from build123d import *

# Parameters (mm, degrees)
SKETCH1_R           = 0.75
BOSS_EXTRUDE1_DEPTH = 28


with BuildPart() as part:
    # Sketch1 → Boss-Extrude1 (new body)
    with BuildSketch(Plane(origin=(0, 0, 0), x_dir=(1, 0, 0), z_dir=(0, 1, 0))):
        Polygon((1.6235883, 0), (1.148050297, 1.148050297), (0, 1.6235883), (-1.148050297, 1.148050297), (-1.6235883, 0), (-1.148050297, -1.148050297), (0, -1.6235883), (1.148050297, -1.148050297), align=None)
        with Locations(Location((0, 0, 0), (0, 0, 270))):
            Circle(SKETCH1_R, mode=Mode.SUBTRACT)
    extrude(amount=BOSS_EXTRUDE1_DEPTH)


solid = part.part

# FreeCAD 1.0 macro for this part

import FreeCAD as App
import Part
import Sketcher

V = App.Vector
Q = App.Units.Quantity


def add_polygon(sketch, points):
    """Adds a closed chain of lines whose ends are joined by coincident constraints."""
    first, n = sketch.GeometryCount, len(points)
    for a, b in zip(points, points[1:] + points[:1]):
        sketch.addGeometry(Part.LineSegment(App.Vector(*a, 0), App.Vector(*b, 0)), False)
    for i in range(n):
        sketch.addConstraint(Sketcher.Constraint("Coincident", first + i, 2, first + (i + 1) % n, 1))

doc = App.newDocument("Part")
body = doc.addObject("PartDesign::Body", "Body")

sketch1 = doc.addObject("Sketcher::SketchObject", "Sketch")
body.addObject(sketch1)
sketch1.AttachmentSupport = (doc.XZ_Plane, [""])
sketch1.MapMode = "FlatFace"
add_polygon(sketch1, [(1.6, 0), (1.1, -1.1), (0, -1.6), (-1.1, -1.1), (-1.6, 0), (-1.1, 1.1), (0, 1.6), (1.1, 1.1)])
sketch1.addGeometry(Part.Circle(V(0, 0, 0), V(0, 0, 1), 0.8), False)
sketch1.addConstraint([
    Sketcher.Constraint("Coincident", 8, 3, -1, 1),
    Sketcher.Constraint("Symmetric", 0, 2, 4, 2, -1, 1),
    Sketcher.Constraint("Symmetric", 1, 2, 5, 2, -1, 1),
    Sketcher.Constraint("Symmetric", 2, 2, 6, 2, -1, 1),
    Sketcher.Constraint("Symmetric", 3, 2, 7, 2, -1, 1),
    Sketcher.Constraint("Symmetric", 0, 2, 2, 2, -2),
    Sketcher.Constraint("PointOnObject", 1, 2, -2),
    Sketcher.Constraint("PointOnObject", 3, 2, -1),
    Sketcher.Constraint("Perpendicular", 0, 2),
    Sketcher.Constraint("Equal", 0, 1),
    Sketcher.Constraint("Diameter", 8, Q("1.5 mm")),
    Sketcher.Constraint("Angle", 0, Q("-112.5 deg")),
    Sketcher.Constraint("DistanceX", 2, 2, 0, 2, Q("2.296101 mm")),
])
pad1 = doc.addObject("PartDesign::Pad", "Pad")
body.addObject(pad1)
pad1.Profile = sketch1
pad1.Length = 28
pad1.Reversed = True

doc.recompute()
